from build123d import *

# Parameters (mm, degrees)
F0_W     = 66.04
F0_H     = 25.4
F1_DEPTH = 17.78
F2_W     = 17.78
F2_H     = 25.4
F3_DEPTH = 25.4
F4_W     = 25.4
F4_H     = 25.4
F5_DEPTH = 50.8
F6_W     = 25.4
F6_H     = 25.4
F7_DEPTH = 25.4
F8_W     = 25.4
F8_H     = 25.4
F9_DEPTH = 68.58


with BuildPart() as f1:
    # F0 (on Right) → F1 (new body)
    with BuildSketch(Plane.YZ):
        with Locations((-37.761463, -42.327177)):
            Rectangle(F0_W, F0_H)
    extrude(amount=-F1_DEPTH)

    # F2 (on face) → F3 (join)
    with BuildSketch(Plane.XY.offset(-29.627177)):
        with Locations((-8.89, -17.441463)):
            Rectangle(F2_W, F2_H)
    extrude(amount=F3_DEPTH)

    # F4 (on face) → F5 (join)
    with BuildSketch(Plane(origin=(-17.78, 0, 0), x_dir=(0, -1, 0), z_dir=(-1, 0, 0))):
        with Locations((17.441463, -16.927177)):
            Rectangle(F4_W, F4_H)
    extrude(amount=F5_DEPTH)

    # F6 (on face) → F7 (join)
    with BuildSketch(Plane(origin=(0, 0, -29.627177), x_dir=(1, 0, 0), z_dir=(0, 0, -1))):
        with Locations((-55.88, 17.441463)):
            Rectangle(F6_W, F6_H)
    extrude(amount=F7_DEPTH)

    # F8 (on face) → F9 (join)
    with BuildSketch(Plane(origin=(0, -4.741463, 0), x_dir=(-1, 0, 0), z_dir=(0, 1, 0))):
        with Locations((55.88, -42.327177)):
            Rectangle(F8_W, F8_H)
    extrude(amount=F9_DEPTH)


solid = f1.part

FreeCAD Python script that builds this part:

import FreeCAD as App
import Part
import Sketcher
Q = App.Units.Quantity


def add_polygon(sketch, points):
    """Adds a closed chain of lines whose ends are joined by coincident constraints."""
    first, n = sketch.GeometryCount, len(points)
    for a, b in zip(points, points[1:] + points[:1]):
        sketch.addGeometry(Part.LineSegment(App.Vector(*a, 0), App.Vector(*b, 0)), False)
    for i in range(n):
        sketch.addConstraint(Sketcher.Constraint("Coincident", first + i, 2, first + (i + 1) % n, 1))

doc = App.newDocument("Part")
params = doc.addObject("Spreadsheet::Sheet", "Params")
for row, (alias, value) in enumerate([
    ("sketch1_height", "1 in"),
    ("sketch1_width", "2.6 in"),
    ("pad1_length", "0.7 in"),
    ("sketch2_height", "1 in"),
    ("sketch2_width", "0.7 in"),
    ("pad2_length", "1 in"),
    ("sketch3_width", "1 in"),
    ("pad3_length", "2 in"),
    ("sketch4_width", "1 in"),
    ("pad4_length", "1 in"),
    ("sketch5_width", "1 in"),
    ("pad5_length", "2.7 in"),
], start=1):
    params.set(f"A{row}", alias)
    params.set(f"B{row}", "=" + value)
    params.setAlias(f"B{row}", alias)

body = doc.addObject("PartDesign::Body", "Body")

# Sketch on YZ plane
sketch1 = body.newObject("Sketcher::SketchObject", "Sketch")
sketch1.AttachmentSupport = (doc.getObject("YZ_Plane"), [""])
sketch1.MapMode = "FlatFace"
add_polygon(sketch1, [(-70.781463, -29.627177), (-70.781463, -55.027177), (-4.741463, -55.027177), (-4.741463, -29.627177)])  # lines 0-3
sketch1.addConstraint(Sketcher.Constraint("Vertical", 0))
sketch1.addConstraint(Sketcher.Constraint("Horizontal", 1))
sketch1.addConstraint(Sketcher.Constraint("Vertical", 2))
sketch1.addConstraint(Sketcher.Constraint("Horizontal", 3))
sketch1.addConstraint(Sketcher.Constraint("DistanceY", 0, 2, 0, 1, Q("1 in")))
sketch1.addConstraint(Sketcher.Constraint("DistanceX", 1, 1, 1, 2, Q("2.6 in")))
sketch1.addConstraint(Sketcher.Constraint("DistanceX", 0, 2, -1, 1, Q("70.781463 mm")))
sketch1.addConstraint(Sketcher.Constraint("DistanceY", 0, 2, -1, 1, Q("55.027177 mm")))
sketch1.setExpression("Constraints[8]", "Params.sketch1_height")
sketch1.setExpression("Constraints[9]", "Params.sketch1_width")
pad1 = body.newObject("PartDesign::Pad", "Pad")
pad1.Profile = sketch1
pad1.setExpression("Length", "Params.pad1_length")
pad1.Reversed = True

# Sketch on XY plane
sketch2 = body.newObject("Sketcher::SketchObject", "Sketch001")
sketch2.AttachmentSupport = (doc.getObject("XY_Plane"), [""])
sketch2.MapMode = "FlatFace"
sketch2.AttachmentOffset = App.Placement(App.Vector(0, 0, -29.627177), App.Rotation())
add_polygon(sketch2, [(-17.78, -4.741463), (-17.78, -30.141463), (0, -30.141463), (0, -4.741463)])  # lines 0-3
sketch2.addConstraint(Sketcher.Constraint("Vertical", 0))
sketch2.addConstraint(Sketcher.Constraint("Horizontal", 1))
sketch2.addConstraint(Sketcher.Constraint("Vertical", 2))
sketch2.addConstraint(Sketcher.Constraint("Horizontal", 3))
sketch2.addConstraint(Sketcher.Constraint("PointOnObject", 1, 2, -2))
sketch2.addConstraint(Sketcher.Constraint("DistanceY", 0, 2, 0, 1, Q("1 in")))
sketch2.addConstraint(Sketcher.Constraint("DistanceX", 1, 1, 1, 2, Q("0.7 in")))
sketch2.addConstraint(Sketcher.Constraint("DistanceY", 0, 2, -1, 1, Q("30.141463 mm")))
sketch2.setExpression("Constraints[9]", "Params.sketch2_height")
sketch2.setExpression("Constraints[10]", "Params.sketch2_width")
pad2 = body.newObject("PartDesign::Pad", "Pad001")
pad2.Profile = sketch2
pad2.setExpression("Length", "Params.pad2_length")

# Sketch on YZ plane
sketch3 = body.newObject("Sketcher::SketchObject", "Sketch002")
sketch3.AttachmentSupport = (doc.getObject("YZ_Plane"), [""])
sketch3.MapMode = "FlatFace"
sketch3.AttachmentOffset = App.Placement(App.Vector(0, 0, -0.7 * 25.4), App.Rotation())
add_polygon(sketch3, [(-4.741463, -4.227177), (-4.741463, -29.627177), (-30.141463, -29.627177), (-30.141463, -4.227177)])  # lines 0-3
sketch3.addConstraint(Sketcher.Constraint("Vertical", 0))
sketch3.addConstraint(Sketcher.Constraint("Horizontal", 1))
sketch3.addConstraint(Sketcher.Constraint("Vertical", 2))
sketch3.addConstraint(Sketcher.Constraint("Horizontal", 3))
sketch3.addConstraint(Sketcher.Constraint("Equal", 3, 0))
sketch3.addConstraint(Sketcher.Constraint("DistanceX", 1, 2, 1, 1, Q("1 in")))
sketch3.addConstraint(Sketcher.Constraint("DistanceX", 0, 2, -1, 1, Q("4.741463 mm")))
sketch3.addConstraint(Sketcher.Constraint("DistanceY", 0, 2, -1, 1, Q("29.627177 mm")))
sketch3.setExpression("Constraints[9]", "Params.sketch3_width")
pad3 = body.newObject("PartDesign::Pad", "Pad002")
pad3.Profile = sketch3
pad3.setExpression("Length", "Params.pad3_length")
pad3.Reversed = True

# Sketch on XY plane
sketch4 = body.newObject("Sketcher::SketchObject", "Sketch003")
sketch4.AttachmentSupport = (doc.getObject("XY_Plane"), [""])
sketch4.MapMode = "FlatFace"
sketch4.AttachmentOffset = App.Placement(App.Vector(0, 0, -29.627177), App.Rotation())
add_polygon(sketch4, [(-68.58, -30.141463), (-68.58, -4.741463), (-43.18, -4.741463), (-43.18, -30.141463)])  # lines 0-3
sketch4.addConstraint(Sketcher.Constraint("Vertical", 0))
sketch4.addConstraint(Sketcher.Constraint("Horizontal", 1))
sketch4.addConstraint(Sketcher.Constraint("Vertical", 2))
sketch4.addConstraint(Sketcher.Constraint("Horizontal", 3))
sketch4.addConstraint(Sketcher.Constraint("Equal", 3, 0))
sketch4.addConstraint(Sketcher.Constraint("DistanceX", 1, 1, 1, 2, Q("1 in")))
sketch4.addConstraint(Sketcher.Constraint("DistanceX", 0, 2, -1, 1, Q("2.7 in")))
sketch4.addConstraint(Sketcher.Constraint("DistanceY", 0, 2, -1, 1, Q("4.741463 mm")))
sketch4.setExpression("Constraints[9]", "Params.sketch4_width")
pad4 = body.newObject("PartDesign::Pad", "Pad003")
pad4.Profile = sketch4
pad4.setExpression("Length", "Params.pad4_length")
pad4.Reversed = True

# Sketch on XZ plane
sketch5 = body.newObject("Sketcher::SketchObject", "Sketch004")
sketch5.AttachmentSupport = (doc.getObject("XZ_Plane"), [""])
sketch5.MapMode = "FlatFace"
sketch5.AttachmentOffset = App.Placement(App.Vector(0, 0, 4.741463), App.Rotation())
add_polygon(sketch5, [(-43.18, -29.627177), (-43.18, -55.027177), (-68.58, -55.027177), (-68.58, -29.627177)])  # lines 0-3
sketch5.addConstraint(Sketcher.Constraint("Vertical", 0))
sketch5.addConstraint(Sketcher.Constraint("Horizontal", 1))
sketch5.addConstraint(Sketcher.Constraint("Vertical", 2))
sketch5.addConstraint(Sketcher.Constraint("Horizontal", 3))
sketch5.addConstraint(Sketcher.Constraint("Equal", 3, 0))
sketch5.addConstraint(Sketcher.Constraint("DistanceX", 1, 2, 1, 1, Q("1 in")))
sketch5.addConstraint(Sketcher.Constraint("DistanceX", 0, 2, -1, 1, Q("1.7 in")))
sketch5.addConstraint(Sketcher.Constraint("DistanceY", 0, 2, -1, 1, Q("55.027177 mm")))
sketch5.setExpression("Constraints[9]", "Params.sketch5_width")
pad5 = body.newObject("PartDesign::Pad", "Pad004")
pad5.Profile = sketch5
pad5.setExpression("Length", "Params.pad5_length")
pad5.Reversed = True

doc.recompute()
